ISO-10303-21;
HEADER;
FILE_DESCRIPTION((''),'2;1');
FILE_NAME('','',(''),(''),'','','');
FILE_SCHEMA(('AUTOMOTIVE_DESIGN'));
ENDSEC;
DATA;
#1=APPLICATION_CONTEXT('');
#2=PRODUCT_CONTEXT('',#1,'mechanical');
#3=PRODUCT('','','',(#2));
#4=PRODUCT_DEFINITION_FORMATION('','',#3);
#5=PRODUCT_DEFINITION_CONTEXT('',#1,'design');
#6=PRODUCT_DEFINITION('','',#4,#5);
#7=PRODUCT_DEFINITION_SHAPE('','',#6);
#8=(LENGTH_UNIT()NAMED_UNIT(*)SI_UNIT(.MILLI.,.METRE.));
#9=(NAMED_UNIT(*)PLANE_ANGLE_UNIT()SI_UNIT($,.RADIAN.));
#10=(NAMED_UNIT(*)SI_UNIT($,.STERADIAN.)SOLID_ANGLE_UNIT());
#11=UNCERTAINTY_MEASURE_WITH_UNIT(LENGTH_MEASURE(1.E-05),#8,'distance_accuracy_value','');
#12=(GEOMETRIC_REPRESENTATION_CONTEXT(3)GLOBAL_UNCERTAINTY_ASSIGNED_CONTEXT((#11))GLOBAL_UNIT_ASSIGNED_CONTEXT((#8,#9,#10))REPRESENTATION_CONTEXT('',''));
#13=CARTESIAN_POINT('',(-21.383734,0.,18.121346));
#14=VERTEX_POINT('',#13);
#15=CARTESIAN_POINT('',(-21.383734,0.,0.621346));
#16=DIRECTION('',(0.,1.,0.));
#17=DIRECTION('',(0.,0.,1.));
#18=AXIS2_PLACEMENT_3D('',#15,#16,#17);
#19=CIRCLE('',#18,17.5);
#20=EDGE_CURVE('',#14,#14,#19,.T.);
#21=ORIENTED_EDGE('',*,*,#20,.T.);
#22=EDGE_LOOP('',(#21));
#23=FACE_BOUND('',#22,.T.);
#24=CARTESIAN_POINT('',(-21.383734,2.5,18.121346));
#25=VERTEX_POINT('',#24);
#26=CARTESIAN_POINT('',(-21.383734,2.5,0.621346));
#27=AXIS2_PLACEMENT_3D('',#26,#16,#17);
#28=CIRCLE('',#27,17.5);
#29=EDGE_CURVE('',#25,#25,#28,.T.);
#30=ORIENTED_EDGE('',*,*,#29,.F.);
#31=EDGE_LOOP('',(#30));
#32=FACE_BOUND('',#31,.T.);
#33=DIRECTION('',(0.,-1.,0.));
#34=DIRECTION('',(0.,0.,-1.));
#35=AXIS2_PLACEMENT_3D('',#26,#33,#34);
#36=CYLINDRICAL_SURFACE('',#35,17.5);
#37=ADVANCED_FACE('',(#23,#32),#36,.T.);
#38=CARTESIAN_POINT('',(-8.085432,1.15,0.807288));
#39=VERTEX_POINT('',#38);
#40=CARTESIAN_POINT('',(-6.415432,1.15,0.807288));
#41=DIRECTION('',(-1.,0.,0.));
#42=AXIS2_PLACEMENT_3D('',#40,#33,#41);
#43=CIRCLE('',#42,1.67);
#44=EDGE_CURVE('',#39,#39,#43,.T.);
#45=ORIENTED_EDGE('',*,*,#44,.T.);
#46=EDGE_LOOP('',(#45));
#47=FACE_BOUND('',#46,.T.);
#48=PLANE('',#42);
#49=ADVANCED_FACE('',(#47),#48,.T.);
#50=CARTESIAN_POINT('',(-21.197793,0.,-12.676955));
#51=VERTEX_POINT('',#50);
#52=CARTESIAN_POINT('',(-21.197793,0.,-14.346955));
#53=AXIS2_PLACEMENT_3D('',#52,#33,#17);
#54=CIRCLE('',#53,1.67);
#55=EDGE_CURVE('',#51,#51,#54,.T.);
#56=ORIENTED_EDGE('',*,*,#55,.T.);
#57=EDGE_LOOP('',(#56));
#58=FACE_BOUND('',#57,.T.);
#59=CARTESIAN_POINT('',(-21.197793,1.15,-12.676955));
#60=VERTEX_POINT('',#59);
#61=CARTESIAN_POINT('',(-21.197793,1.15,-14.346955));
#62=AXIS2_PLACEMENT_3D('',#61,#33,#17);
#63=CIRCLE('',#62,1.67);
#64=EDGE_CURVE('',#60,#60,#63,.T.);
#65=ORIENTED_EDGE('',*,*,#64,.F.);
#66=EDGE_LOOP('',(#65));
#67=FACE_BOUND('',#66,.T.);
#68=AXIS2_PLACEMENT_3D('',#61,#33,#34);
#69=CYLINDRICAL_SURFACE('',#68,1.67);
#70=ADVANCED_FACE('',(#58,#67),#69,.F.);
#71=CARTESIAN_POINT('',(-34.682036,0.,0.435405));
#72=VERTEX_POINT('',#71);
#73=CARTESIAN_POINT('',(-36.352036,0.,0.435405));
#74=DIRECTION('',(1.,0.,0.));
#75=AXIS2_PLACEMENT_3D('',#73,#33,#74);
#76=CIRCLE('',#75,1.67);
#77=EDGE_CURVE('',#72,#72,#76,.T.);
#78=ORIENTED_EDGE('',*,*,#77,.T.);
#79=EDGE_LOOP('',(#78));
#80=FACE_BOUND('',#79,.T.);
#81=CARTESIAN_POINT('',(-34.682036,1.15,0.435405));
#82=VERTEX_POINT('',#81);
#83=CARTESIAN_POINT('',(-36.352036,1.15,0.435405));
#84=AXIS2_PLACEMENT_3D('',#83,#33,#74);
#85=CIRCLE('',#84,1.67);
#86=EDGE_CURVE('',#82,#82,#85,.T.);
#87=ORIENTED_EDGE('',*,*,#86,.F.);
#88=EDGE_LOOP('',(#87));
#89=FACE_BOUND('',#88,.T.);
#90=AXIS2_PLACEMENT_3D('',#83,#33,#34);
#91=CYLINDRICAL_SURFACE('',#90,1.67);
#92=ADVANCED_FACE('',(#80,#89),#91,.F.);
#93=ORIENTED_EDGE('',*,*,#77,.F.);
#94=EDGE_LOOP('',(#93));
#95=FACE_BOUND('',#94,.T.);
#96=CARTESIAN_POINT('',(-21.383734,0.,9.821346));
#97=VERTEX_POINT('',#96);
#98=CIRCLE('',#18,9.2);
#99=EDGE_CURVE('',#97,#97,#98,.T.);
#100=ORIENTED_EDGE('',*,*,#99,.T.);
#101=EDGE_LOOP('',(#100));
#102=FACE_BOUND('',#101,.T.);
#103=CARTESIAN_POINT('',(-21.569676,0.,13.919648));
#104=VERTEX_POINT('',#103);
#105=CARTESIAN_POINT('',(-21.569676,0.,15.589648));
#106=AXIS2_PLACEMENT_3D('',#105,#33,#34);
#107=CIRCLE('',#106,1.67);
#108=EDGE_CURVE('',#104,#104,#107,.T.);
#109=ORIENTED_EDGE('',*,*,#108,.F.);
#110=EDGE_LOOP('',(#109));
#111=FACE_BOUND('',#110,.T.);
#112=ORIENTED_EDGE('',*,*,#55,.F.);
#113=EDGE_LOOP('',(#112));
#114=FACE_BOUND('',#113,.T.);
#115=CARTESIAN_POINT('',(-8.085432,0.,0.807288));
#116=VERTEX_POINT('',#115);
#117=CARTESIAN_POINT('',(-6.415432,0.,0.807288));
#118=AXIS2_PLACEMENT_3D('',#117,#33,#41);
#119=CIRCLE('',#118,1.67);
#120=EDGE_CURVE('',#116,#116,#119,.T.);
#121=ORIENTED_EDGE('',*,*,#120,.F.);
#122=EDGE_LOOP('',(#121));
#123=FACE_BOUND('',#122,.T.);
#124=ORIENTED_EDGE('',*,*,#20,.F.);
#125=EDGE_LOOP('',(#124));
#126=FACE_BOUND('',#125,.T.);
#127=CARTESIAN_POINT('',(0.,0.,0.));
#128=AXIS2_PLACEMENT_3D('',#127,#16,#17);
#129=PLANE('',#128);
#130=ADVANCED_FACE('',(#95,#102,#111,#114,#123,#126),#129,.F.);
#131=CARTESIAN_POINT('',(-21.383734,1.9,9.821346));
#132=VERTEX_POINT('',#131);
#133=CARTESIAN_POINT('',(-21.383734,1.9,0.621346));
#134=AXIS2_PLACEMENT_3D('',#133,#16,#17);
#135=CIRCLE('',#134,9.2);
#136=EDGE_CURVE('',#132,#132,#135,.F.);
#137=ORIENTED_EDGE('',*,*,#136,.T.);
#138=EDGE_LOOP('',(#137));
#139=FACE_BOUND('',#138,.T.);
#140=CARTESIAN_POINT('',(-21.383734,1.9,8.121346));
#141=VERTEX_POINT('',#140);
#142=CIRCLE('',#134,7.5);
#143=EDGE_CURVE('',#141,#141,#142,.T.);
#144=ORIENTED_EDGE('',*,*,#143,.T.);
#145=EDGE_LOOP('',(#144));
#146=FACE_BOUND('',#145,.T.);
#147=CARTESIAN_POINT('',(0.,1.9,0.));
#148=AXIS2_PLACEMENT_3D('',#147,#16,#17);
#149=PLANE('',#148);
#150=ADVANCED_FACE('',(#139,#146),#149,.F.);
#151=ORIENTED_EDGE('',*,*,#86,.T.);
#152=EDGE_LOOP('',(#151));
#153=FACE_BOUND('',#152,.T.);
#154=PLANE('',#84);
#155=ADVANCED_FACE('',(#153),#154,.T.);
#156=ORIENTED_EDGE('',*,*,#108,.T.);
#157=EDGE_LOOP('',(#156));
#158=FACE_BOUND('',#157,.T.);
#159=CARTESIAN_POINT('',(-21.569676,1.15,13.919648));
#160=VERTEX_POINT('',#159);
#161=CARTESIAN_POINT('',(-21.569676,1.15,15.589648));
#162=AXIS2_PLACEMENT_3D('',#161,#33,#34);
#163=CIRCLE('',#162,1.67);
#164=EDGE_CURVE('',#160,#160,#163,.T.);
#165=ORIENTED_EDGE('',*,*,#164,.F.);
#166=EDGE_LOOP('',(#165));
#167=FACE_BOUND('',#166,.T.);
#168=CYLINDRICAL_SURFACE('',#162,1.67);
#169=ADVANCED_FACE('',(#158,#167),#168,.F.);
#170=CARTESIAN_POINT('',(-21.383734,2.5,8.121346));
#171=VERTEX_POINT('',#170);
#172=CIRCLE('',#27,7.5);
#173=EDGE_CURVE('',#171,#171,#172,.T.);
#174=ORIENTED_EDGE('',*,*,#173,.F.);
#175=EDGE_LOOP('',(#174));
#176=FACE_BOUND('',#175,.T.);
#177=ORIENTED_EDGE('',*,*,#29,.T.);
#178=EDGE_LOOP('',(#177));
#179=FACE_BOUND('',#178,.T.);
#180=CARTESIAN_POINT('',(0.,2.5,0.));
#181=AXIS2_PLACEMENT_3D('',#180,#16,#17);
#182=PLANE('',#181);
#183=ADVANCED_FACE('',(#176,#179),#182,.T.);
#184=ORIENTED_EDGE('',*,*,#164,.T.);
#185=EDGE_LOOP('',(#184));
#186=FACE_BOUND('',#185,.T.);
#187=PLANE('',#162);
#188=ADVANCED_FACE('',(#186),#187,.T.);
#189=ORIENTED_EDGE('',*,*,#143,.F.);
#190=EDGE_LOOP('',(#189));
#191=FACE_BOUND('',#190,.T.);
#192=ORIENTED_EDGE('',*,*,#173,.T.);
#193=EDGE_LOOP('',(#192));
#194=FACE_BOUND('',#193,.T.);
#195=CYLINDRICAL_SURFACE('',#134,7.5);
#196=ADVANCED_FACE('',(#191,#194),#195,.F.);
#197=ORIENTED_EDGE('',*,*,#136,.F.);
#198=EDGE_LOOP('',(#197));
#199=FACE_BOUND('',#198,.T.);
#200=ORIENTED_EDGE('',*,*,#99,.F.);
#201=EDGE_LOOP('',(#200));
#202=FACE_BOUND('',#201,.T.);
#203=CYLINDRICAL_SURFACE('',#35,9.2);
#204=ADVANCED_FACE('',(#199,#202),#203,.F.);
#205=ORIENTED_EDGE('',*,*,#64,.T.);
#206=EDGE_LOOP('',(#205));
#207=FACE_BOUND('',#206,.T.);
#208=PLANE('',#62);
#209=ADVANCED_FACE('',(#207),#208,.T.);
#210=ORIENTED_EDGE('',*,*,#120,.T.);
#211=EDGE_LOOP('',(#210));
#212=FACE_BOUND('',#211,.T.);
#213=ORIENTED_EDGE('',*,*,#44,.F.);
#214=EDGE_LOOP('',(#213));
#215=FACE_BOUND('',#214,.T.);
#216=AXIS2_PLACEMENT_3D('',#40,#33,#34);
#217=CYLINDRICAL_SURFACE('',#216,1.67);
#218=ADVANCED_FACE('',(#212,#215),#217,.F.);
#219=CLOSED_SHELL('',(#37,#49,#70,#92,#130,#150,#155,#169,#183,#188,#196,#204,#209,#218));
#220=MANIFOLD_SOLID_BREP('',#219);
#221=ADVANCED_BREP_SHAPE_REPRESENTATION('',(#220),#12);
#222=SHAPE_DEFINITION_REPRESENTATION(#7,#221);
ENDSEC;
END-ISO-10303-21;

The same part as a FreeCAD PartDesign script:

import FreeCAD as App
import Part
import Sketcher
from FreeCAD import Vector

doc = App.newDocument("Part")
body = doc.addObject("PartDesign::Body", "Body")

# Sketch on XZ plane
sketch1 = body.newObject("Sketcher::SketchObject", "Sketch")
sketch1.AttachmentSupport = (doc.getObject("XZ_Plane"), [""])
sketch1.MapMode = "FlatFace"
sketch1.addGeometry(Part.Circle(Vector(-21, 1, 0), Vector(0, 0, 1), 18), False)
sketch1.addGeometry(Part.Circle(Vector(-21, 1, 0), Vector(0, 0, 1), 9), False)
sketch1.addConstraint(Sketcher.Constraint("Coincident", 1, 3, 0, 3))
sketch1.addConstraint(Sketcher.Constraint("Diameter", 0, 35.0))
sketch1.addConstraint(Sketcher.Constraint("Diameter", 1, 18.4))
sketch1.addConstraint(Sketcher.Constraint("DistanceX", 0, 3, -1, 1, 21.383734))
sketch1.addConstraint(Sketcher.Constraint("DistanceY", -1, 1, 0, 3, 0.621346))
pad1 = body.newObject("PartDesign::Pad", "Pad")
pad1.Profile = sketch1
pad1.Length = 2.5
pad1.Reversed = True

# Sketch on XZ plane
sketch2 = body.newObject("Sketcher::SketchObject", "Sketch001")
sketch2.AttachmentSupport = (doc.getObject("XZ_Plane"), [""])
sketch2.MapMode = "FlatFace"
sketch2.AttachmentOffset = App.Placement(Vector(0, 0, -1.9), App.Rotation())
sketch2.addGeometry(Part.Circle(Vector(-21, 1, 0), Vector(0, 0, 1), 9), False)
sketch2.addGeometry(Part.Circle(Vector(-21, 1, 0), Vector(0, 0, 1), 8), False)
sketch2.addConstraint(Sketcher.Constraint("Coincident", 1, 3, 0, 3))
sketch2.addConstraint(Sketcher.Constraint("Diameter", 1, 15.0))
sketch2.addConstraint(Sketcher.Constraint("Diameter", 0, 18.4))
sketch2.addConstraint(Sketcher.Constraint("DistanceX", 0, 3, -1, 1, 21.383734))
sketch2.addConstraint(Sketcher.Constraint("DistanceY", -1, 1, 0, 3, 0.621346))
pad2 = body.newObject("PartDesign::Pad", "Pad001")
pad2.Profile = sketch2
pad2.Length = 0.6
pad2.Reversed = True

# Sketch on XZ plane
sketch3 = body.newObject("Sketcher::SketchObject", "Sketch002")
sketch3.AttachmentSupport = (doc.getObject("XZ_Plane"), [""])
sketch3.MapMode = "FlatFace"
sketch3.addGeometry(Part.Circle(Vector(-21.6, 15.6, 0), Vector(0, 0, 1), 1.7), False)
sketch3.addConstraint(Sketcher.Constraint("Diameter", 0, 3.34))
sketch3.addConstraint(Sketcher.Constraint("DistanceY", -1, 1, 0, 3, 15.589648))
sketch3.addConstraint(Sketcher.Constraint("DistanceX", 0, 3, -1, 1, 21.569676))
pocket1 = body.newObject("PartDesign::Pocket", "Pocket")
pocket1.Profile = sketch3
pocket1.Length = 1.15
doc.recompute()

datumline = body.newObject("PartDesign::Line", "DatumLine")
datumline.Placement = App.Placement(Vector(-21.383734, 0, 0.621346), App.Rotation(Vector(0, 0, 1), Vector(0, 1, 0)))
polarpattern = body.newObject("PartDesign::PolarPattern", "PolarPattern")
polarpattern.Originals = [pocket1]
polarpattern.Axis = (datumline, [""])
polarpattern.Angle = 360
polarpattern.Occurrences = 4
body.Tip = polarpattern

doc.recompute()
